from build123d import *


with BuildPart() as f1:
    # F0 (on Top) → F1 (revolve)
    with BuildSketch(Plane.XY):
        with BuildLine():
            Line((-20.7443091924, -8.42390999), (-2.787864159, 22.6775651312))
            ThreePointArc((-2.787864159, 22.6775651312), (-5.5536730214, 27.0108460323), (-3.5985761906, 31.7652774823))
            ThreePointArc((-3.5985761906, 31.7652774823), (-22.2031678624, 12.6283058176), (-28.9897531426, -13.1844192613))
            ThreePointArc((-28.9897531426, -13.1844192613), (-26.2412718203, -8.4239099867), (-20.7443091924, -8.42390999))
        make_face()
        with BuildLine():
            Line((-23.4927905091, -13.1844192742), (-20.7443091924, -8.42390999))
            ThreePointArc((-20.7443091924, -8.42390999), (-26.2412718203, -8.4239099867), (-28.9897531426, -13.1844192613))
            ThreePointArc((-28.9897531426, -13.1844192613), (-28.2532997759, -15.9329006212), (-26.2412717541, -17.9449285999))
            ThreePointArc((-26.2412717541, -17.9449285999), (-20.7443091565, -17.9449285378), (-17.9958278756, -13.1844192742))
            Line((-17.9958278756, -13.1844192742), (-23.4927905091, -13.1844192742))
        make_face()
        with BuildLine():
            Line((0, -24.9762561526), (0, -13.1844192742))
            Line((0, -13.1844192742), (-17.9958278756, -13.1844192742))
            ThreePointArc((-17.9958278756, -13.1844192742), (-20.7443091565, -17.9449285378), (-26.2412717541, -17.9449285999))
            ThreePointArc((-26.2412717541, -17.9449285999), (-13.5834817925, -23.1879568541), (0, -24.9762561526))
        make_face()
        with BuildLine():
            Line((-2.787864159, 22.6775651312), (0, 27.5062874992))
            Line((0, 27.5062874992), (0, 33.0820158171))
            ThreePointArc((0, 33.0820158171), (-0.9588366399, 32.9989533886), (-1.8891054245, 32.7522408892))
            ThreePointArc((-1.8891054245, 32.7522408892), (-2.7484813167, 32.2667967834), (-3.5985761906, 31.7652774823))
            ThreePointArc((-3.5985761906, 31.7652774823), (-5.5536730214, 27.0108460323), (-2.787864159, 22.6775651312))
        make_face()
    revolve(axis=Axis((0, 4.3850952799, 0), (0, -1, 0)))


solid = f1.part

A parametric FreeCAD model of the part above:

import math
import FreeCAD as App
import Part
import Sketcher
from FreeCAD import Vector

doc = App.newDocument("Part")
body = doc.addObject("PartDesign::Body", "Body")

sketch1 = body.newObject("Sketcher::SketchObject", "Sketch")
sketch1.AttachmentSupport = (doc.getObject("XY_Plane"), [""])
sketch1.MapMode = "FlatFace"
sketch1.addGeometry(Part.LineSegment(Vector(-20.744309, -8.42391, 0), Vector(0, 27.506287, 0)), False)
sketch1.addGeometry(Part.LineSegment(Vector(0, 27.506287, 0), Vector(0, 33.082016, 0)), False)
sketch1.addGeometry(Part.ArcOfCircle(Part.Circle(Vector(0, 27.506287, 0), Vector(0, 0, 1), 5.575728), math.radians(90), math.radians(109.804312)), False)
sketch1.addGeometry(Part.ArcOfCircle(Part.Circle(Vector(23.492791, -13.18442, 0), Vector(0, 0, 1), 52.482544), math.radians(118.922458), math.radians(121.077542)), False)
sketch1.addGeometry(Part.ArcOfCircle(Part.Circle(Vector(23.492791, -13.184419, 0), Vector(0, 0, 1), 52.482544), math.radians(121.077543), math.radians(180)), False)
sketch1.addGeometry(Part.ArcOfCircle(Part.Circle(Vector(-23.492791, -13.184419, 0), Vector(0, 0, 1), 5.496963), math.radians(180), math.radians(240.000001)), False)
sketch1.addGeometry(Part.ArcOfCircle(Part.Circle(Vector(0, 27.506287, 0), Vector(0, 0, 1), 52.482544), math.radians(-120), math.radians(-90)), False)
sketch1.addGeometry(Part.LineSegment(Vector(0, -24.976256, 0), Vector(0, -13.184419, 0)), False)
sketch1.addGeometry(Part.LineSegment(Vector(0, -13.184419, 0), Vector(-23.492791, -13.184419, 0)), False)
sketch1.addGeometry(Part.LineSegment(Vector(-23.492791, -13.184419, 0), Vector(-20.744309, -8.42391, 0)), False)
sketch1.addConstraint(Sketcher.Constraint("Coincident", 0, 2, 1, 1))
sketch1.addConstraint(Sketcher.Constraint("Coincident", 1, 2, 2, 1))
sketch1.addConstraint(Sketcher.Constraint("Coincident", 2, 2, 3, 1))
sketch1.addConstraint(Sketcher.Constraint("Tangent", 3, 2, 4, 1))
sketch1.addConstraint(Sketcher.Constraint("Tangent", 4, 2, 5, 1))
sketch1.addConstraint(Sketcher.Constraint("Tangent", 5, 2, 6, 1))
sketch1.addConstraint(Sketcher.Constraint("Coincident", 6, 2, 7, 1))
sketch1.addConstraint(Sketcher.Constraint("Coincident", 7, 2, 8, 1))
sketch1.addConstraint(Sketcher.Constraint("Coincident", 8, 2, 9, 1))
sketch1.addConstraint(Sketcher.Constraint("Coincident", 9, 2, 0, 1))
sketch1.addConstraint(Sketcher.Constraint("Vertical", 1))
sketch1.addConstraint(Sketcher.Constraint("Vertical", 7))
sketch1.addConstraint(Sketcher.Constraint("Horizontal", 8))
sketch1.addConstraint(Sketcher.Constraint("Coincident", 6, 3, 2, 3))
sketch1.addConstraint(Sketcher.Constraint("Coincident", 0, 2, 2, 3))
sketch1.addConstraint(Sketcher.Constraint("Coincident", 8, 2, 5, 3))
sketch1.addConstraint(Sketcher.Constraint("Equal", 3, 4))
sketch1.addConstraint(Sketcher.Constraint("Equal", 4, 6))
sketch1.addConstraint(Sketcher.Constraint("Symmetric", 3, 3, 5, 3, -2))
sketch1.addConstraint(Sketcher.Constraint("PointOnObject", 2, 3, -2))
sketch1.addConstraint(Sketcher.Constraint("PointOnObject", 6, 2, -2))
sketch1.addConstraint(Sketcher.Constraint("Parallel", 0, 9))
sketch1.addConstraint(Sketcher.Constraint("Radius", 2, 5.575728))
sketch1.addConstraint(Sketcher.Constraint("Radius", 3, 52.482544))
sketch1.addConstraint(Sketcher.Constraint("Radius", 5, 5.496963))
sketch1.addConstraint(Sketcher.Constraint("Distance", 0, 41.488618))
sketch1.addConstraint(Sketcher.Constraint("DistanceY", 3, 3, -1, 1, 13.18442))
sketch1.addConstraint(Sketcher.Constraint("DistanceX", 3, 2, 2, 2, 1.709471))
revolution = body.newObject("PartDesign::Revolution", "Revolution")
revolution.Profile = sketch1
revolution.ReferenceAxis = (sketch1, ["V_Axis"])
revolution.Angle = 360

doc.recompute()
